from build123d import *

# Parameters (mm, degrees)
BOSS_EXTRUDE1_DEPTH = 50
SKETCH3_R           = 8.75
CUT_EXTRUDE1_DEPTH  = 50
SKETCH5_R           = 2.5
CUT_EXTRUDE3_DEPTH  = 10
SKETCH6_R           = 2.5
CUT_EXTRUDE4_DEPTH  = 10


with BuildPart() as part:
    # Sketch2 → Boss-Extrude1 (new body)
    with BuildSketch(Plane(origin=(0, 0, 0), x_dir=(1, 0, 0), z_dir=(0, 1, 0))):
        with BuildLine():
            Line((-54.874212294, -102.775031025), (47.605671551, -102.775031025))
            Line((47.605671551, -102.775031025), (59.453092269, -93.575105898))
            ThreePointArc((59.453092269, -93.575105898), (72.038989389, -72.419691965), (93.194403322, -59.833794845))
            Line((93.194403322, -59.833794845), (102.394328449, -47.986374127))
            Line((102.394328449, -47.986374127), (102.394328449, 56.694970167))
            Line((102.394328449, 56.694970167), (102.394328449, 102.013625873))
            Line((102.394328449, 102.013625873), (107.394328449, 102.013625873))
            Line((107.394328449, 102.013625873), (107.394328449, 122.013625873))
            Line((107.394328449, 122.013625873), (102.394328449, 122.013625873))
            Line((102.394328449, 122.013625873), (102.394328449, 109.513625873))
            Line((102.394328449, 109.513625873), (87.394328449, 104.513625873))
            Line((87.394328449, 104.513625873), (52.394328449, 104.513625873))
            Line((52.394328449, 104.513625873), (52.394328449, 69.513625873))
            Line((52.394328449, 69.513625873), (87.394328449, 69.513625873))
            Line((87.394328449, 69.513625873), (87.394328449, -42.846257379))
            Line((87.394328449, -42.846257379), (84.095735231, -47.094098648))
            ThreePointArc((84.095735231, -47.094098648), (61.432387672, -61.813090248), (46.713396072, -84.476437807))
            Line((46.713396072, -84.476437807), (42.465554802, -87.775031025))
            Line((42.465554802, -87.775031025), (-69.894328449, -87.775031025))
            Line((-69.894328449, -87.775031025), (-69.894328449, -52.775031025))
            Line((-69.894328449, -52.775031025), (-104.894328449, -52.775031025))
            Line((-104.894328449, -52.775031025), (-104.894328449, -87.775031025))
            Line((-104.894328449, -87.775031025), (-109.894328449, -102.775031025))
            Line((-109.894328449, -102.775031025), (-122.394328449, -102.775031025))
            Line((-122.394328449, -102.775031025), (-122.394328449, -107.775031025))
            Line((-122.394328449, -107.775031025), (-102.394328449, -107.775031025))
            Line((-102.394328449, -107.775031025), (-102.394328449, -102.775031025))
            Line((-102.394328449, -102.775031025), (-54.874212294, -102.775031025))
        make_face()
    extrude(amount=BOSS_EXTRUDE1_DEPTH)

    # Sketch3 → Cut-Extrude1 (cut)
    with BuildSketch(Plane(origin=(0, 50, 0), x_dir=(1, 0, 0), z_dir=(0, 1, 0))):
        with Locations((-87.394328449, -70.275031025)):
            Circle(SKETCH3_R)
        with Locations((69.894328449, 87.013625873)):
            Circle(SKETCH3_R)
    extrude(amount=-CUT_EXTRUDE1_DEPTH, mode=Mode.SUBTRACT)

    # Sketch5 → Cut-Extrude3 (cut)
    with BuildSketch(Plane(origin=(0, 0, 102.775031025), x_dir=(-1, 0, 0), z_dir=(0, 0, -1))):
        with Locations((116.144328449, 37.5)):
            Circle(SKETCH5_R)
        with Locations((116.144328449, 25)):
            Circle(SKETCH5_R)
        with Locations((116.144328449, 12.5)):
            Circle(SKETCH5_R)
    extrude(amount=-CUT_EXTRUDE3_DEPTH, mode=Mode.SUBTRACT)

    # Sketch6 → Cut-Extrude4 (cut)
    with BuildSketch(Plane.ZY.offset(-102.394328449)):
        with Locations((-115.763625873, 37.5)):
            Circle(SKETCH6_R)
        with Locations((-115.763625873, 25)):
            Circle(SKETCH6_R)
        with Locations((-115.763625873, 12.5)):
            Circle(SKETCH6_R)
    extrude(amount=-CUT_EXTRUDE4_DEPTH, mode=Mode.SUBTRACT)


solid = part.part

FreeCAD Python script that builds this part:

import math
import FreeCAD as App
import Part
import Sketcher
from FreeCAD import Vector
Q = App.Units.Quantity

doc = App.newDocument("Part")
body = doc.addObject("PartDesign::Body", "Body")

# Sketch on XZ plane
sketch1 = body.newObject("Sketcher::SketchObject", "Sketch")
sketch1.AttachmentSupport = (doc.getObject("XZ_Plane"), [""])
sketch1.MapMode = "FlatFace"
sketch1.addGeometry([
    Part.LineSegment(Vector(48, 103, 0), Vector(59, 94, 0)),  # 0
    Part.ArcOfCircle(Part.Circle(Vector(107, 108, 0), Vector(0, 0, 1), 50), math.radians(-164), math.radians(-106)),  # 1
    Part.LineSegment(Vector(93, 60, 0), Vector(102, 48, 0)),  # 2
    Part.LineSegment(Vector(102, 48, 0), Vector(102, -102, 0)),  # 3
    Part.LineSegment(Vector(102, -102, 0), Vector(107, -102, 0)),  # 4
    Part.LineSegment(Vector(107, -102, 0), Vector(107, -122, 0)),  # 5
    Part.LineSegment(Vector(107, -122, 0), Vector(102, -122, 0)),  # 6
    Part.LineSegment(Vector(102, -122, 0), Vector(102, -110, 0)),  # 7
    Part.LineSegment(Vector(102, -110, 0), Vector(87, -105, 0)),  # 8
    Part.LineSegment(Vector(87, -105, 0), Vector(52, -105, 0)),  # 9
    Part.LineSegment(Vector(52, -105, 0), Vector(52, -70, 0)),  # 10
    Part.LineSegment(Vector(52, -70, 0), Vector(87, -70, 0)),  # 11
    Part.LineSegment(Vector(87, -70, 0), Vector(87, 43, 0)),  # 12
    Part.LineSegment(Vector(87, 43, 0), Vector(84, 47, 0)),  # 13
    Part.ArcOfCircle(Part.Circle(Vector(107, 108, 0), Vector(0, 0, 1), 65), math.radians(-159), math.radians(-111)),  # 14
    Part.LineSegment(Vector(47, 84, 0), Vector(42, 88, 0)),  # 15
    Part.LineSegment(Vector(42, 88, 0), Vector(-70, 88, 0)),  # 16
    Part.LineSegment(Vector(-70, 88, 0), Vector(-70, 53, 0)),  # 17
    Part.LineSegment(Vector(-70, 53, 0), Vector(-105, 53, 0)),  # 18
    Part.LineSegment(Vector(-105, 53, 0), Vector(-105, 88, 0)),  # 19
    Part.LineSegment(Vector(-105, 88, 0), Vector(-110, 103, 0)),  # 20
    Part.LineSegment(Vector(-110, 103, 0), Vector(-122, 103, 0)),  # 21
    Part.LineSegment(Vector(-122, 103, 0), Vector(-122, 108, 0)),  # 22
    Part.LineSegment(Vector(-122, 108, 0), Vector(-102, 108, 0)),  # 23
    Part.LineSegment(Vector(-102, 108, 0), Vector(-102, 103, 0)),  # 24
    Part.LineSegment(Vector(-102, 103, 0), Vector(48, 103, 0)),  # 25
], False)
sketch1.addConstraint([
    Sketcher.Constraint("Coincident", 0, 2, 1, 1),
    Sketcher.Constraint("Coincident", 1, 2, 2, 1),
    Sketcher.Constraint("Coincident", 2, 2, 3, 1),
    Sketcher.Constraint("Coincident", 3, 2, 4, 1),
    Sketcher.Constraint("Coincident", 4, 2, 5, 1),
    Sketcher.Constraint("Coincident", 5, 2, 6, 1),
    Sketcher.Constraint("Coincident", 6, 2, 7, 1),
    Sketcher.Constraint("Coincident", 7, 2, 8, 1),
    Sketcher.Constraint("Coincident", 8, 2, 9, 1),
    Sketcher.Constraint("Coincident", 9, 2, 10, 1),
    Sketcher.Constraint("Coincident", 10, 2, 11, 1),
    Sketcher.Constraint("Coincident", 11, 2, 12, 1),
    Sketcher.Constraint("Coincident", 12, 2, 13, 1),
    Sketcher.Constraint("Coincident", 13, 2, 14, 2),
    Sketcher.Constraint("Coincident", 14, 1, 15, 1),
    Sketcher.Constraint("Coincident", 15, 2, 16, 1),
    Sketcher.Constraint("Coincident", 16, 2, 17, 1),
    Sketcher.Constraint("Coincident", 17, 2, 18, 1),
    Sketcher.Constraint("Coincident", 18, 2, 19, 1),
    Sketcher.Constraint("Coincident", 19, 2, 20, 1),
    Sketcher.Constraint("Coincident", 20, 2, 21, 1),
    Sketcher.Constraint("Coincident", 21, 2, 22, 1),
    Sketcher.Constraint("Coincident", 22, 2, 23, 1),
    Sketcher.Constraint("Coincident", 23, 2, 24, 1),
    Sketcher.Constraint("Coincident", 24, 2, 25, 1),
    Sketcher.Constraint("Coincident", 25, 2, 0, 1),
    Sketcher.Constraint("Vertical", 3),
    Sketcher.Constraint("Horizontal", 4),
    Sketcher.Constraint("Vertical", 5),
    Sketcher.Constraint("Horizontal", 6),
    Sketcher.Constraint("Vertical", 7),
    Sketcher.Constraint("Horizontal", 9),
    Sketcher.Constraint("Vertical", 10),
    Sketcher.Constraint("Horizontal", 11),
    Sketcher.Constraint("Vertical", 12),
    Sketcher.Constraint("Horizontal", 16),
    Sketcher.Constraint("Vertical", 17),
    Sketcher.Constraint("Horizontal", 18),
    Sketcher.Constraint("Vertical", 19),
    Sketcher.Constraint("Horizontal", 21),
    Sketcher.Constraint("Vertical", 22),
    Sketcher.Constraint("Horizontal", 23),
    Sketcher.Constraint("Vertical", 24),
    Sketcher.Constraint("Horizontal", 25),
    Sketcher.Constraint("Coincident", 14, 3, 1, 3),
    Sketcher.Constraint("Parallel", 2, 13),
    Sketcher.Constraint("Parallel", 0, 15),
    Sketcher.Constraint("Horizontal", 16, 2, 19, 2),
    Sketcher.Constraint("Horizontal", 14, 3, 22, 2),
    Sketcher.Constraint("Horizontal", 21, 2, 24, 2),
    Sketcher.Constraint("Vertical", 14, 3, 4, 2),
    Sketcher.Constraint("Vertical", 3, 2, 6, 2),
    Sketcher.Constraint("Vertical", 8, 2, 11, 2),
    Sketcher.Constraint("Equal", 11, 18),
    Sketcher.Constraint("Equal", 25, 3),
    Sketcher.Constraint("Equal", 23, 5),
    Sketcher.Constraint("Equal", 21, 7),
    Sketcher.Constraint("Equal", 18, 10),
    Sketcher.Constraint("Equal", 16, 12),
    Sketcher.Constraint("Equal", 10, 17),
    Sketcher.Constraint("Equal", 6, 22),
    Sketcher.Constraint("Equal", 0, 2),
    Sketcher.Constraint("Equal", 13, 15),
    Sketcher.Constraint("Equal", 8, 20),
    Sketcher.Constraint("Radius", 1, Q("50 mm")),
    Sketcher.Constraint("Radius", 14, Q("65 mm")),
    Sketcher.Constraint("DistanceX", 4, 1, 4, 2, Q("5 mm")),
    Sketcher.Constraint("DistanceX", 9, 2, 9, 1, Q("35 mm")),
    Sketcher.Constraint("DistanceX", 23, 1, 23, 2, Q("20 mm")),
    Sketcher.Constraint("DistanceX", 25, 1, 25, 2, Q("150 mm")),
    Sketcher.Constraint("Distance", 0, Q("15 mm")),
    Sketcher.Constraint("DistanceX", 21, 2, 21, 1, Q("12.5 mm")),
    Sketcher.Constraint("DistanceX", 8, 2, 3, 2, Q("15 mm")),
    Sketcher.Constraint("DistanceY", 7, 2, 8, 2, Q("5 mm")),
    Sketcher.Constraint("DistanceX", 20, 2, 19, 2, Q("5 mm")),
    Sketcher.Constraint("DistanceY", -1, 1, 13, 2, Q("47.094099 mm")),
    Sketcher.Constraint("DistanceX", 16, 2, 16, 1, Q("112.359883 mm")),
    Sketcher.Constraint("DistanceX", -1, 1, 1, 3, Q("107.394328 mm")),
    Sketcher.Constraint("DistanceY", -1, 1, 1, 3, Q("107.775031 mm")),
])
pad1 = body.newObject("PartDesign::Pad", "Pad")
pad1.Profile = sketch1
pad1.Length = 50
pad1.Reversed = True

# Sketch on XZ plane
sketch2 = body.newObject("Sketcher::SketchObject", "Sketch001")
sketch2.AttachmentSupport = (doc.getObject("XZ_Plane"), [""])
sketch2.MapMode = "FlatFace"
sketch2.AttachmentOffset = App.Placement(Vector(0, 0, -50), App.Rotation())
sketch2.addGeometry([
    Part.Circle(Vector(-87, 70, 0), Vector(0, 0, 1), 9),
    Part.Circle(Vector(70, -87, 0), Vector(0, 0, 1), 9),
], False)
sketch2.addConstraint([
    Sketcher.Constraint("Equal", 0, 1),
    Sketcher.Constraint("Diameter", 0, Q("17.5 mm")),
    Sketcher.Constraint("DistanceX", 0, 3, -1, 1, Q("87.394328 mm")),
    Sketcher.Constraint("DistanceY", -1, 1, 0, 3, Q("70.275031 mm")),
    Sketcher.Constraint("DistanceX", -1, 1, 1, 3, Q("69.894328 mm")),
    Sketcher.Constraint("DistanceY", 1, 3, -1, 1, Q("87.013626 mm")),
])
pocket1 = body.newObject("PartDesign::Pocket", "Pocket")
pocket1.Profile = sketch2
pocket1.Length = 50
pocket1.Reversed = True

# Sketch on XY plane
sketch3 = body.newObject("Sketcher::SketchObject", "Sketch002")
sketch3.AttachmentSupport = (doc.getObject("XY_Plane"), [""])
sketch3.MapMode = "FlatFace"
sketch3.AttachmentOffset = App.Placement(Vector(0, 0, 102.775031), App.Rotation())
sketch3.addGeometry([
    Part.Circle(Vector(-116.1, 37.5, 0), Vector(0, 0, 1), 2.5),
    Part.Circle(Vector(-116.1, 25, 0), Vector(0, 0, 1), 2.5),
    Part.Circle(Vector(-116.1, 12.5, 0), Vector(0, 0, 1), 2.5),
], False)
sketch3.addConstraint([
    Sketcher.Constraint("Equal", 0, 1),
    Sketcher.Constraint("Equal", 1, 2),
    Sketcher.Constraint("Vertical", 0, 3, 1, 3),
    Sketcher.Constraint("Vertical", 1, 3, 2, 3),
    Sketcher.Constraint("Diameter", 0, Q("5 mm")),
    Sketcher.Constraint("DistanceY", -1, 1, 1, 3, Q("25 mm")),
    Sketcher.Constraint("DistanceY", 2, 3, 0, 3, Q("25 mm")),
    Sketcher.Constraint("DistanceY", -1, 1, 0, 3, Q("37.5 mm")),
    Sketcher.Constraint("DistanceX", 0, 3, -1, 1, Q("116.144328 mm")),
])
pocket2 = body.newObject("PartDesign::Pocket", "Pocket001")
pocket2.Profile = sketch3
pocket2.Length = 10
pocket2.Reversed = True

# Sketch on YZ plane
sketch4 = body.newObject("Sketcher::SketchObject", "Sketch003")
sketch4.AttachmentSupport = (doc.getObject("YZ_Plane"), [""])
sketch4.MapMode = "FlatFace"
sketch4.AttachmentOffset = App.Placement(Vector(0, 0, 102.394328), App.Rotation())
sketch4.addGeometry([
    Part.Circle(Vector(37.5, -115.8, 0), Vector(0, 0, 1), 2.5),
    Part.Circle(Vector(25, -115.8, 0), Vector(0, 0, 1), 2.5),
    Part.Circle(Vector(12.5, -115.8, 0), Vector(0, 0, 1), 2.5),
], False)
sketch4.addConstraint([
    Sketcher.Constraint("Equal", 0, 1),
    Sketcher.Constraint("Equal", 1, 2),
    Sketcher.Constraint("Horizontal", 0, 3, 1, 3),
    Sketcher.Constraint("Horizontal", 1, 3, 2, 3),
    Sketcher.Constraint("Diameter", 0, Q("5 mm")),
    Sketcher.Constraint("DistanceX", -1, 1, 1, 3, Q("25 mm")),
    Sketcher.Constraint("DistanceX", 2, 3, 0, 3, Q("25 mm")),
    Sketcher.Constraint("DistanceX", -1, 1, 0, 3, Q("37.5 mm")),
    Sketcher.Constraint("DistanceY", 0, 3, -1, 1, Q("115.763626 mm")),
])
pocket3 = body.newObject("PartDesign::Pocket", "Pocket002")
pocket3.Profile = sketch4
pocket3.Length = 10
pocket3.Reversed = True

doc.recompute()
